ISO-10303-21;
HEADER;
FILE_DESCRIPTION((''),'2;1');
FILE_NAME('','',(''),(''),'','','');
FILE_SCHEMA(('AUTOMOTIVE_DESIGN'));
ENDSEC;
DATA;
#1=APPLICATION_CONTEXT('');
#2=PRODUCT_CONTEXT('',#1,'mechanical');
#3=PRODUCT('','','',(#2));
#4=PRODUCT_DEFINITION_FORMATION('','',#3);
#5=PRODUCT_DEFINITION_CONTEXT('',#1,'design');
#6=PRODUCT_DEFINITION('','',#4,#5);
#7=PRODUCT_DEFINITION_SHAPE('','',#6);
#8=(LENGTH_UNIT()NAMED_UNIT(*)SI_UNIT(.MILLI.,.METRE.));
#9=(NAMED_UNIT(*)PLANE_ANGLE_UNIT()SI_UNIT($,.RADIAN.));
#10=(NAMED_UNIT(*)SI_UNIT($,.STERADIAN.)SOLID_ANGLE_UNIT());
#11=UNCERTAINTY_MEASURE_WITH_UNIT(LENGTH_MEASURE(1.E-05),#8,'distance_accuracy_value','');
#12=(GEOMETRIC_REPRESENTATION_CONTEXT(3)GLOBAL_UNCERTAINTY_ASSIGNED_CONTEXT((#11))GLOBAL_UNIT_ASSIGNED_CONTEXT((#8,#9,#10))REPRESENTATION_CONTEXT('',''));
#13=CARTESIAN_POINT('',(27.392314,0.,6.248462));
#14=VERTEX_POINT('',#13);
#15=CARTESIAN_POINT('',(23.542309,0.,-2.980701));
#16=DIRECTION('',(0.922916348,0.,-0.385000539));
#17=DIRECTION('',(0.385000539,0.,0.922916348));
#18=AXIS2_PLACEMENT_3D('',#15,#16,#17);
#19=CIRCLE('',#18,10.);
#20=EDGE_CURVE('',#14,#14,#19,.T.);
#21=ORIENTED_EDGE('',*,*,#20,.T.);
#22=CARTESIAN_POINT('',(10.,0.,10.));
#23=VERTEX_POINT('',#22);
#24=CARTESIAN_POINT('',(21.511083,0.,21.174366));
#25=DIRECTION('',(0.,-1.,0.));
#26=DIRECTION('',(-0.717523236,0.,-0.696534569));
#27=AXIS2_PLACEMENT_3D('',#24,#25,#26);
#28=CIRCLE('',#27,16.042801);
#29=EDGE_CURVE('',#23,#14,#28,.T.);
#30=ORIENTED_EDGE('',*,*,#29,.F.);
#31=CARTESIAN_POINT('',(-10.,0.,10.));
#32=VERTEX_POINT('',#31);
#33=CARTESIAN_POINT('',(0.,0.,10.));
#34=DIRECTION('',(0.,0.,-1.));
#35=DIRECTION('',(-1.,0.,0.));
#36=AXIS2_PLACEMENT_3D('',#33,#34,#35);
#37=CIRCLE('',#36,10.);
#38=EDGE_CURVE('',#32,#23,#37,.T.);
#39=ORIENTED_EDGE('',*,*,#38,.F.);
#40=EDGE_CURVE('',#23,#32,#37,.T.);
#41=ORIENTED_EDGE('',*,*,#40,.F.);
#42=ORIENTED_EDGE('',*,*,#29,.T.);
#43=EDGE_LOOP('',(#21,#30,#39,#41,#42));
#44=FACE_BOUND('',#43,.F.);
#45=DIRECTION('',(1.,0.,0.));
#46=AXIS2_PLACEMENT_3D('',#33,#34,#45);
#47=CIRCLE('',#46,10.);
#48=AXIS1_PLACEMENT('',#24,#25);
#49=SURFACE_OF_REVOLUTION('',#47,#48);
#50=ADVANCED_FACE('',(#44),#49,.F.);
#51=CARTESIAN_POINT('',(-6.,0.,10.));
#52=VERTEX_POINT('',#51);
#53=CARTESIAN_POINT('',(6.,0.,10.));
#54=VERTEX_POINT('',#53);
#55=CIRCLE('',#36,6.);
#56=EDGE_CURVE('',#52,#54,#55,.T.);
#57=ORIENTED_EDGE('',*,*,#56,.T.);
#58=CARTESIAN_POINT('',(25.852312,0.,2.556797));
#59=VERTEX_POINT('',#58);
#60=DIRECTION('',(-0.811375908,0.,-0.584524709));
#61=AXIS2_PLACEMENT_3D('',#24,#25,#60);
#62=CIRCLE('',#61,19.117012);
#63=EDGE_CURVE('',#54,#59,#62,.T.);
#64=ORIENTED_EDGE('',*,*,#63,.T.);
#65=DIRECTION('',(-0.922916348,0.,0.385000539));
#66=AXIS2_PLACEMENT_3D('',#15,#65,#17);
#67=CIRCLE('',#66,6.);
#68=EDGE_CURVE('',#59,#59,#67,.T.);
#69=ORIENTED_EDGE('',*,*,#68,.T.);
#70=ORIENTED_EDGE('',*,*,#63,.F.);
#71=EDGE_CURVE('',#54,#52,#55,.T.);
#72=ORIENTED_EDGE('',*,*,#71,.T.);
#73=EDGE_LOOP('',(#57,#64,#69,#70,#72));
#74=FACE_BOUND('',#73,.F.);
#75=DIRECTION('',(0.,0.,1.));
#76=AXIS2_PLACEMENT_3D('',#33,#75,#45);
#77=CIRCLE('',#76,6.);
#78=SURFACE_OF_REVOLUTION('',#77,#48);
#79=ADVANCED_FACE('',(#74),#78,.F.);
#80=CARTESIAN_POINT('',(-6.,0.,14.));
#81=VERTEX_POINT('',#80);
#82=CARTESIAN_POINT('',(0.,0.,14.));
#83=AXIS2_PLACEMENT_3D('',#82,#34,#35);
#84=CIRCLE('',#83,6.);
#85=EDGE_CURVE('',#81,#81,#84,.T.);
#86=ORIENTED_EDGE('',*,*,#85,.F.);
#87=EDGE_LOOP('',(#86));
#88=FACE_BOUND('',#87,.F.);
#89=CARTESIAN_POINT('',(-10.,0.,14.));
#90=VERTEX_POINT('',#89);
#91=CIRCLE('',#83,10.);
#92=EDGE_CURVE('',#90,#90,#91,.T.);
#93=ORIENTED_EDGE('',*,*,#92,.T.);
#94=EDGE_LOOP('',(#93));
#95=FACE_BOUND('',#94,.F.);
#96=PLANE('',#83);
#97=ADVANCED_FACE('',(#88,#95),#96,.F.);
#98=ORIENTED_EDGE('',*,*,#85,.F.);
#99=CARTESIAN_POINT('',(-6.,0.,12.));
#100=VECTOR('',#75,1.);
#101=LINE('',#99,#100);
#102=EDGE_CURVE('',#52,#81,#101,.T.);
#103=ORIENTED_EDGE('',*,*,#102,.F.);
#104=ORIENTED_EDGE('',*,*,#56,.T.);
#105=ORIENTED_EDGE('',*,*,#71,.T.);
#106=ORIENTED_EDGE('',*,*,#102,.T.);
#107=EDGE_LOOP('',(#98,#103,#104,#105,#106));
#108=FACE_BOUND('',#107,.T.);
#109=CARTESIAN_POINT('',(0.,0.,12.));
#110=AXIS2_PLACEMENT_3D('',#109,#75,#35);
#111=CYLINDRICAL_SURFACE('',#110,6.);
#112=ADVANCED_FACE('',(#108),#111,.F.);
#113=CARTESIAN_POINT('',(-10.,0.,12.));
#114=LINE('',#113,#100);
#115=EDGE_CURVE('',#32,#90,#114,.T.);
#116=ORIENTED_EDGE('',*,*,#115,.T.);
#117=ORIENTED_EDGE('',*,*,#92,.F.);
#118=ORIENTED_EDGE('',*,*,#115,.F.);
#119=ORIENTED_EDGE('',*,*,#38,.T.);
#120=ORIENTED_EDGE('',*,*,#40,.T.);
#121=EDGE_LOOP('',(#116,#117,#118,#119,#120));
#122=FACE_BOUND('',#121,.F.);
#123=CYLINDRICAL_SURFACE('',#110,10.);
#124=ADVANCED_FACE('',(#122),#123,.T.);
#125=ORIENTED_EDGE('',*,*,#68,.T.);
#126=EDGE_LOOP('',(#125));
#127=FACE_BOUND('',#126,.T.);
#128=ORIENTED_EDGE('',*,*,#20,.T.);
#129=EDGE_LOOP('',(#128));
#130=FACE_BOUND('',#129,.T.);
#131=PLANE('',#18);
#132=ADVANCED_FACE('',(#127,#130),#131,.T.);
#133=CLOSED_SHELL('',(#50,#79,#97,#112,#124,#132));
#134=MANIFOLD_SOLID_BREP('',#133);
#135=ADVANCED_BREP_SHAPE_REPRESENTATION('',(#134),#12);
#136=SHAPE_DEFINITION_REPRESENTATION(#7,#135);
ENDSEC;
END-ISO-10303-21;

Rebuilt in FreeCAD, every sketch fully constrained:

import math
import FreeCAD as App
import Part
import Sketcher

doc = App.newDocument("Part")
body = doc.addObject("PartDesign::Body", "Body")

sketch1 = doc.addObject("Sketcher::SketchObject", "Sketch")
body.addObject(sketch1)
sketch1.AttachmentSupport = (doc.XZ_Plane, [""])
sketch1.MapMode = "FlatFace"
sketch1.addGeometry([
    Part.LineSegment(App.Vector(-10, 14, 0), App.Vector(-10, 10, 0)),
    Part.LineSegment(App.Vector(-10, 10, 0), App.Vector(-6, 10, 0)),
    Part.LineSegment(App.Vector(-6, 10, 0), App.Vector(-6, 14, 0)),
    Part.LineSegment(App.Vector(-6, 14, 0), App.Vector(-10, 14, 0)),
], False)
sketch1.addConstraint([
    Sketcher.Constraint("Coincident", 0, 2, 1, 1),
    Sketcher.Constraint("Coincident", 1, 2, 2, 1),
    Sketcher.Constraint("Coincident", 2, 2, 3, 1),
    Sketcher.Constraint("Coincident", 3, 2, 0, 1),
    Sketcher.Constraint("Vertical", 0),
    Sketcher.Constraint("Horizontal", 1),
    Sketcher.Constraint("Vertical", 2),
    Sketcher.Constraint("Horizontal", 3),
    Sketcher.Constraint("Equal", 3, 0),
    Sketcher.Constraint("DistanceX", 1, 1, 1, 2, 4.0),
    Sketcher.Constraint("DistanceX", 0, 2, -1, 1, 10.0),
    Sketcher.Constraint("DistanceY", -1, 1, 0, 2, 10.0),
])
revolution = doc.addObject("PartDesign::Revolution", "Revolution")
body.addObject(revolution)
revolution.Profile = sketch1
revolution.ReferenceAxis = (sketch1, ["V_Axis"])
revolution.Angle = 360

sketch2 = doc.addObject("Sketcher::SketchObject", "Sketch001")
body.addObject(sketch2)
sketch2.AttachmentSupport = (doc.XY_Plane, [""])
sketch2.MapMode = "FlatFace"
sketch2.AttachmentOffset = App.Placement(App.Vector(0, 0, 10), App.Rotation())
sketch2.addGeometry([
    Part.Circle(App.Vector(0, 0, 0), App.Vector(0, 0, 1), 10),
    Part.Circle(App.Vector(0, 0, 0), App.Vector(0, 0, 1), 6),
], False)
sketch2.addConstraint([
    Sketcher.Constraint("Coincident", 0, 3, -1, 1),
    Sketcher.Constraint("Coincident", 1, 3, -1, 1),
    Sketcher.Constraint("Diameter", 0, 20.0),
    Sketcher.Constraint("Diameter", 1, 12.0),
])

sketch3 = doc.addObject("Sketcher::SketchObject", "Sketch002")
body.addObject(sketch3)
sketch3.AttachmentSupport = (doc.XZ_Plane, [""])
sketch3.MapMode = "FlatFace"
sketch3.addGeometry(Part.ArcOfCircle(Part.Circle(App.Vector(21.511083, 21.174366, 0), App.Vector(0, 0, 1), 24.24032), math.radians(-152.549469), math.radians(-85.193243)), False)
sketch3.addConstraint([
    Sketcher.Constraint("PointOnObject", 0, 1, -2),
    Sketcher.Constraint("DistanceY", -1, 1, 0, 1, 10.0),
    Sketcher.Constraint("Radius", 0, 24.24032),
    Sketcher.Constraint("DistanceY", 0, 2, -1, 1, 2.980701),
    Sketcher.Constraint("DistanceX", -1, 1, 0, 2, 23.542309),
])
doc.recompute()

additivepipe = doc.addObject("PartDesign::AdditivePipe", "AdditivePipe")
body.addObject(additivepipe)
additivepipe.Profile = sketch2
additivepipe.Spine = (sketch3, ["Edge1"])

doc.recompute()
